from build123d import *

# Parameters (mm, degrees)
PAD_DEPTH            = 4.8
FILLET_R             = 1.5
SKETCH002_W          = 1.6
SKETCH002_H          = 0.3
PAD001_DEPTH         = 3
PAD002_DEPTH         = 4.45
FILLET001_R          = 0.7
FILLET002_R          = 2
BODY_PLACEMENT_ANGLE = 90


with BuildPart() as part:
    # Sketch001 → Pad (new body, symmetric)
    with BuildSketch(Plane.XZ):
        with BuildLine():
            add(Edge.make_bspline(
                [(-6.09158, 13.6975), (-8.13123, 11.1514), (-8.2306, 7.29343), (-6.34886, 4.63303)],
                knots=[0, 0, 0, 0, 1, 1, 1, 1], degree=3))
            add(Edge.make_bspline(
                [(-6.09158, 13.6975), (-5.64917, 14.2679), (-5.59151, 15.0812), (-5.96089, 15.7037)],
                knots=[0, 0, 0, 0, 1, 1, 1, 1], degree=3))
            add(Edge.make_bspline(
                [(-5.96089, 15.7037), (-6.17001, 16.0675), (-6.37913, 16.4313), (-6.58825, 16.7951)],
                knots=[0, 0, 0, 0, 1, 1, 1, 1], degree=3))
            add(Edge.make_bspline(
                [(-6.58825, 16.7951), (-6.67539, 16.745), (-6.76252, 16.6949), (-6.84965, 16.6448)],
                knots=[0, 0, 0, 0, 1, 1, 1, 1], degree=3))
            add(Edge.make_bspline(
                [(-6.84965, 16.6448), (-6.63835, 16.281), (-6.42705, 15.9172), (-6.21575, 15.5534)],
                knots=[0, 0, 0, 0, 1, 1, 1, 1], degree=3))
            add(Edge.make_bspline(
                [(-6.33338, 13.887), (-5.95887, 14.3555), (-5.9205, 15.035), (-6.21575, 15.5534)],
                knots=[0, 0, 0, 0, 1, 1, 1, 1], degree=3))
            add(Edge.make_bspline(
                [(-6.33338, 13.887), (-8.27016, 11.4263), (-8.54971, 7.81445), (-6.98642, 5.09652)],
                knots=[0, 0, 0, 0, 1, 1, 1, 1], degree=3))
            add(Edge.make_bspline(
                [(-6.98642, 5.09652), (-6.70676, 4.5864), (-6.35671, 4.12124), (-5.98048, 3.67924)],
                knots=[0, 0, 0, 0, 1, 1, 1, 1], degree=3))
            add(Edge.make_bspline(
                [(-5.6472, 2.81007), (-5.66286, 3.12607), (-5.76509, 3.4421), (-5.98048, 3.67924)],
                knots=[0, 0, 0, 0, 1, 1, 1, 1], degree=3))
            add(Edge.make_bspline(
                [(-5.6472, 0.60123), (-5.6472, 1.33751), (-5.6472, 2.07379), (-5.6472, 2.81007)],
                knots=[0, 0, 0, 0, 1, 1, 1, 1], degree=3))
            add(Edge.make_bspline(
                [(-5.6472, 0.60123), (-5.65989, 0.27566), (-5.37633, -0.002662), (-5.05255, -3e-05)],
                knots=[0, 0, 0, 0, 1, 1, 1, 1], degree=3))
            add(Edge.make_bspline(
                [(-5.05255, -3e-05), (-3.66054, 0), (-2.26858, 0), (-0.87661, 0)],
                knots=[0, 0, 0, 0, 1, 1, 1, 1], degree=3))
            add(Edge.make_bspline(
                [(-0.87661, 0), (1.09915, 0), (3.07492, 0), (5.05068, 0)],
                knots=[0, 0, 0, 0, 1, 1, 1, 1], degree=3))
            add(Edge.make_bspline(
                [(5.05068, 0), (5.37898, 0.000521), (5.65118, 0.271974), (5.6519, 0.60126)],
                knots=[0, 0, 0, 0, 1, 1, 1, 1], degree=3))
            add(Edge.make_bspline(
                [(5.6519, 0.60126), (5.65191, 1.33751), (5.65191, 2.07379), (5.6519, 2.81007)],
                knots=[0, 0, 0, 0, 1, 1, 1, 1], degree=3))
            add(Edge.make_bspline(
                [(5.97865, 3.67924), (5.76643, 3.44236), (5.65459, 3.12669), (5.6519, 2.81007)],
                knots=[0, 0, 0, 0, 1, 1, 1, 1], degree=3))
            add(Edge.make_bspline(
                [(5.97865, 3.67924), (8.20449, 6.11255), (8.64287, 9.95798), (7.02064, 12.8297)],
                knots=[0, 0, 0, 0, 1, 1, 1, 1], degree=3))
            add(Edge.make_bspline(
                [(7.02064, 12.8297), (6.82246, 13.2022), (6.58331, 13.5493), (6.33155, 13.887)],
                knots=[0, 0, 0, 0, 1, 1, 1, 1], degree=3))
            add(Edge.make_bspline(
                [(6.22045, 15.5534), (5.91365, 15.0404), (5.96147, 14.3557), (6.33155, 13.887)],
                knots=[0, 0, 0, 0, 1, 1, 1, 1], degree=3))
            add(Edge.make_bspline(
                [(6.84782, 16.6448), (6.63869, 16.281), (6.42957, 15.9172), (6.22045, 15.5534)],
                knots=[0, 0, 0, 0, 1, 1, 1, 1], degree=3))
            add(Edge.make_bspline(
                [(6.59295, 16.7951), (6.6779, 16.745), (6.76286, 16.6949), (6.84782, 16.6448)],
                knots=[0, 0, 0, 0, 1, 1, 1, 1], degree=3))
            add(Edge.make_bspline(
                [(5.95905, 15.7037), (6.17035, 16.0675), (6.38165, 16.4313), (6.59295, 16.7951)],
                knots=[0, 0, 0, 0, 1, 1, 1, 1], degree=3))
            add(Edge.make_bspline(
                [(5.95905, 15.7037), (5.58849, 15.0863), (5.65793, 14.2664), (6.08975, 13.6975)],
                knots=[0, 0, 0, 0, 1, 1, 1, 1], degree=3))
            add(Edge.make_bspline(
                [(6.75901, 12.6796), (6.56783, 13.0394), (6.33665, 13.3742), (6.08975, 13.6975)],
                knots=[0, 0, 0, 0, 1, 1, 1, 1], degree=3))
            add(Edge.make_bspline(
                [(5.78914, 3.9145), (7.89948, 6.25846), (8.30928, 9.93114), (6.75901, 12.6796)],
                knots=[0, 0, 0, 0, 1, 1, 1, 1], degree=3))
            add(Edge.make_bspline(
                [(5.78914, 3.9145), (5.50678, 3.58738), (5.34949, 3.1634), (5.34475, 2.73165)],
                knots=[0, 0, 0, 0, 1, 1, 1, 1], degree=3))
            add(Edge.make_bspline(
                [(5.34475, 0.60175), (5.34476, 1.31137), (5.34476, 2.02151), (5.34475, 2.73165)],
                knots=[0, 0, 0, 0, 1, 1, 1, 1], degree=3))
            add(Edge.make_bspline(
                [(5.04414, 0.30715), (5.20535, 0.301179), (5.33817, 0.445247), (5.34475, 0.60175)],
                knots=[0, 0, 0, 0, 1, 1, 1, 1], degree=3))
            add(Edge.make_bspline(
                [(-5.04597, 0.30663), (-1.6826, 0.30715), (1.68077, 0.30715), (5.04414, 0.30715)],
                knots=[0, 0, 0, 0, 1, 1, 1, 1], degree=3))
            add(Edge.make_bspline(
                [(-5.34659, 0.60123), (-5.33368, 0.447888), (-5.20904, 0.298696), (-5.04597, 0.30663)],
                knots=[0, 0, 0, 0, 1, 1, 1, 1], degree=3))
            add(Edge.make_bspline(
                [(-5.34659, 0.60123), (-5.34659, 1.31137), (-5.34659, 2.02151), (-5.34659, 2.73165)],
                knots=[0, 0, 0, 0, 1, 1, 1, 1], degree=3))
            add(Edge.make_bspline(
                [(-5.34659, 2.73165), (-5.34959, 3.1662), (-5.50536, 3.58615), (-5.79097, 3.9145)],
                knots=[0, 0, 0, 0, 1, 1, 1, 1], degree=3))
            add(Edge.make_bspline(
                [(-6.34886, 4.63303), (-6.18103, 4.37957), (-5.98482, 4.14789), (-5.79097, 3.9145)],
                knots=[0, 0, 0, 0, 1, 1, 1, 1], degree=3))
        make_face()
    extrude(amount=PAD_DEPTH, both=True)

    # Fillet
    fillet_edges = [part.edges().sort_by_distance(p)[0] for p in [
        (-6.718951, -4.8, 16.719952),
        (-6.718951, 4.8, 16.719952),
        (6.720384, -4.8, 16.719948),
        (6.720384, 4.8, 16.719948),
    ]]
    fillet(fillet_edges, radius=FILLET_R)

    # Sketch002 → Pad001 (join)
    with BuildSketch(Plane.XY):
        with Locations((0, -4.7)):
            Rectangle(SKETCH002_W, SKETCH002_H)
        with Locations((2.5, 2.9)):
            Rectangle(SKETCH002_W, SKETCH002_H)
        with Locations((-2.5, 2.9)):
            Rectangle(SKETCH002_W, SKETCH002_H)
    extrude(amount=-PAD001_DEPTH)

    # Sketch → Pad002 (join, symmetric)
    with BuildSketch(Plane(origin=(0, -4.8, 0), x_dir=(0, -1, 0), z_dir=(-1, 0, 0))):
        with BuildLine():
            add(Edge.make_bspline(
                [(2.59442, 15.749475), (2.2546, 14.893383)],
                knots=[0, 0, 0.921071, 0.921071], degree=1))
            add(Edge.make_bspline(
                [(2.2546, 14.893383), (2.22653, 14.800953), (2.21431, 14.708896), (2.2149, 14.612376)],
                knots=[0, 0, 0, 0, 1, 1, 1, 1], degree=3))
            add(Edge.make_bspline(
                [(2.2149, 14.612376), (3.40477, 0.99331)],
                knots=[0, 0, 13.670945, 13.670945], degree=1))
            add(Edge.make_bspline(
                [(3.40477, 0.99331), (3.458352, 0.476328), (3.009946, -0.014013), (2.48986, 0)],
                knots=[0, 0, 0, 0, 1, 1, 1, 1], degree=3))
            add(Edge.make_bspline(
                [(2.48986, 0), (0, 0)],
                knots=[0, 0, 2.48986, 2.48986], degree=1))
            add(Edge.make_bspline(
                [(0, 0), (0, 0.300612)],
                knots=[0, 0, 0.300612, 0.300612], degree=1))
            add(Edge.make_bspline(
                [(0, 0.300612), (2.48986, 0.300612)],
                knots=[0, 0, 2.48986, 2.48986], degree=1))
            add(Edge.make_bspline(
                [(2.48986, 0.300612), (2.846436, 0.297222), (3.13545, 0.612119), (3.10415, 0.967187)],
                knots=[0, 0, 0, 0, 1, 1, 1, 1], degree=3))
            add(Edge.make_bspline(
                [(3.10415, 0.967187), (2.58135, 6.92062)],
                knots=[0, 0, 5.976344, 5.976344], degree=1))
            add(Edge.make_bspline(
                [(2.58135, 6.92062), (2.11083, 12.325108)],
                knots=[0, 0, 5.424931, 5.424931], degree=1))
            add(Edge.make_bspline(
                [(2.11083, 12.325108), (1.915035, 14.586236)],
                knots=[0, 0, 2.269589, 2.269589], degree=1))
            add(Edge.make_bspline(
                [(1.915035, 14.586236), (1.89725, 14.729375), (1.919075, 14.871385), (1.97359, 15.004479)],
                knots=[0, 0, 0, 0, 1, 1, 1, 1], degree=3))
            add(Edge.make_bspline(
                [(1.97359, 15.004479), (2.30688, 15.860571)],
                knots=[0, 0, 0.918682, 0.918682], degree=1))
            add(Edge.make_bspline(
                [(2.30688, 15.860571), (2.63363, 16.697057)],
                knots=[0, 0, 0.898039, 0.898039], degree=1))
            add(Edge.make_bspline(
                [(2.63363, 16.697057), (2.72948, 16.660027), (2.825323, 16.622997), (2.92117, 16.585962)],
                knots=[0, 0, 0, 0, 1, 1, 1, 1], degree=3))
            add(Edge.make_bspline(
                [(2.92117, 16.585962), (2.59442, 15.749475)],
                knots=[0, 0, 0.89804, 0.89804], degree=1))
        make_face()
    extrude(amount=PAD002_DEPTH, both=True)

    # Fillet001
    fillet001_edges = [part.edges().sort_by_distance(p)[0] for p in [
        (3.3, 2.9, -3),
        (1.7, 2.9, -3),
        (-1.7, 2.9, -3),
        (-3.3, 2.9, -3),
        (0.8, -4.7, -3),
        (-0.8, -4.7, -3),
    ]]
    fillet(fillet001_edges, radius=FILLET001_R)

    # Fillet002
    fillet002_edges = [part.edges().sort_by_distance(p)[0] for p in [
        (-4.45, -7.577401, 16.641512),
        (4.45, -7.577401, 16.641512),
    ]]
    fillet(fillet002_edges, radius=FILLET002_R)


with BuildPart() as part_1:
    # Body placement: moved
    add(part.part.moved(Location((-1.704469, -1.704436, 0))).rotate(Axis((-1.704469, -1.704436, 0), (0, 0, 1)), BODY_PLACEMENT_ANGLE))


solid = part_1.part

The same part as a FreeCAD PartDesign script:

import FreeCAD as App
import Part
import Sketcher
from FreeCAD import Vector


def edges_at(feature, points):
    """Names of the edges that pass closest to the given points."""
    edges = feature.Shape.Edges
    near = lambda p: min(range(len(edges)), key=lambda i: edges[i].distToShape(Part.Vertex(*p))[0])
    return sorted({f"Edge{near(p) + 1}" for p in points})

doc = App.newDocument("Part")
body = doc.addObject("PartDesign::Body", "Body")

# Sketch on XZ plane
sketch1 = body.newObject("Sketcher::SketchObject", "Sketch")
sketch1.AttachmentSupport = (doc.getObject("XZ_Plane"), [""])
sketch1.MapMode = "FlatFace"
sketch1.addGeometry([
    Part.BSplineCurve([Vector(-6.09158, 13.6975, 0), Vector(-8.13123, 11.1514, 0), Vector(-8.2306, 7.29343, 0), Vector(-6.34886, 4.63303, 0)], [4, 4], [0, 1], False, 3, [1, 1, 1, 1], False),  # 0
    Part.BSplineCurve([Vector(-6.09158, 13.6975, 0), Vector(-5.64917, 14.2679, 0), Vector(-5.59151, 15.0812, 0), Vector(-5.96089, 15.7037, 0)], [4, 4], [0, 1], False, 3, [1, 1, 1, 1], False),  # 1
    Part.BSplineCurve([Vector(-5.96089, 15.7037, 0), Vector(-6.17001, 16.0675, 0), Vector(-6.37913, 16.4313, 0), Vector(-6.58825, 16.7951, 0)], [4, 4], [0, 1], False, 3, [1, 1, 1, 1], False),  # 2
    Part.BSplineCurve([Vector(-6.58825, 16.7951, 0), Vector(-6.67539, 16.745, 0), Vector(-6.76252, 16.6949, 0), Vector(-6.84965, 16.6448, 0)], [4, 4], [0, 1], False, 3, [1, 1, 1, 1], False),  # 3
    Part.BSplineCurve([Vector(-6.84965, 16.6448, 0), Vector(-6.63835, 16.281, 0), Vector(-6.42705, 15.9172, 0), Vector(-6.21575, 15.5534, 0)], [4, 4], [0, 1], False, 3, [1, 1, 1, 1], False),  # 4
    Part.BSplineCurve([Vector(-6.33338, 13.887, 0), Vector(-5.95887, 14.3555, 0), Vector(-5.9205, 15.035, 0), Vector(-6.21575, 15.5534, 0)], [4, 4], [0, 1], False, 3, [1, 1, 1, 1], False),  # 5
    Part.BSplineCurve([Vector(-6.33338, 13.887, 0), Vector(-8.27016, 11.4263, 0), Vector(-8.54971, 7.81445, 0), Vector(-6.98642, 5.09652, 0)], [4, 4], [0, 1], False, 3, [1, 1, 1, 1], False),  # 6
    Part.BSplineCurve([Vector(-6.98642, 5.09652, 0), Vector(-6.70676, 4.5864, 0), Vector(-6.35671, 4.12124, 0), Vector(-5.98048, 3.67924, 0)], [4, 4], [0, 1], False, 3, [1, 1, 1, 1], False),  # 7
    Part.BSplineCurve([Vector(-5.6472, 2.81007, 0), Vector(-5.66286, 3.12607, 0), Vector(-5.76509, 3.4421, 0), Vector(-5.98048, 3.67924, 0)], [4, 4], [0, 1], False, 3, [1, 1, 1, 1], False),  # 8
    Part.BSplineCurve([Vector(-5.6472, 0.60123, 0), Vector(-5.6472, 1.33751, 0), Vector(-5.6472, 2.07379, 0), Vector(-5.6472, 2.81007, 0)], [4, 4], [0, 1], False, 3, [1, 1, 1, 1], False),  # 9
    Part.BSplineCurve([Vector(-5.6472, 0.60123, 0), Vector(-5.65989, 0.27566, 0), Vector(-5.37633, -0.002662, 0), Vector(-5.05255, -0.00003, 0)], [4, 4], [0, 1], False, 3, [1, 1, 1, 1], False),  # 10
    Part.BSplineCurve([Vector(-5.05255, -0.00003, 0), Vector(-3.66054, 0, 0), Vector(-2.26858, 0, 0), Vector(1.09915, 0, 0), Vector(3.07492, 0, 0), Vector(5.05068, 0, 0)], [4, 2, 4], [0, 1, 2.419398407], False, 3, [1, 1, 1, 1, 1, 1], False),  # 11
    Part.BSplineCurve([Vector(5.05068, 0, 0), Vector(5.37898, 0.000521, 0), Vector(5.65118, 0.271974, 0), Vector(5.6519, 0.60126, 0)], [4, 4], [0, 1], False, 3, [1, 1, 1, 1], False),  # 12
    Part.BSplineCurve([Vector(5.6519, 0.60126, 0), Vector(5.65191, 1.33751, 0), Vector(5.65191, 2.07379, 0), Vector(5.6519, 2.81007, 0)], [4, 4], [0, 1], False, 3, [1, 1, 1, 1], False),  # 13
    Part.BSplineCurve([Vector(5.97865, 3.67924, 0), Vector(5.76643, 3.44236, 0), Vector(5.65459, 3.12669, 0), Vector(5.6519, 2.81007, 0)], [4, 4], [0, 1], False, 3, [1, 1, 1, 1], False),  # 14
    Part.BSplineCurve([Vector(5.97865, 3.67924, 0), Vector(8.20449, 6.11255, 0), Vector(8.64287, 9.95798, 0), Vector(7.02064, 12.8297, 0)], [4, 4], [0, 1], False, 3, [1, 1, 1, 1], False),  # 15
    Part.BSplineCurve([Vector(7.02064, 12.8297, 0), Vector(6.82246, 13.2022, 0), Vector(6.58331, 13.5493, 0), Vector(6.33155, 13.887, 0)], [4, 4], [0, 1], False, 3, [1, 1, 1, 1], False),  # 16
    Part.BSplineCurve([Vector(6.22045, 15.5534, 0), Vector(5.91365, 15.0404, 0), Vector(5.96147, 14.3557, 0), Vector(6.33155, 13.887, 0)], [4, 4], [0, 1], False, 3, [1, 1, 1, 1], False),  # 17
    Part.BSplineCurve([Vector(6.84782, 16.6448, 0), Vector(6.63869, 16.281, 0), Vector(6.42957, 15.9172, 0), Vector(6.22045, 15.5534, 0)], [4, 4], [0, 1], False, 3, [1, 1, 1, 1], False),  # 18
    Part.BSplineCurve([Vector(6.59295, 16.7951, 0), Vector(6.6779, 16.745, 0), Vector(6.76286, 16.6949, 0), Vector(6.84782, 16.6448, 0)], [4, 4], [0, 1], False, 3, [1, 1, 1, 1], False),  # 19
    Part.BSplineCurve([Vector(5.95905, 15.7037, 0), Vector(6.17035, 16.0675, 0), Vector(6.38165, 16.4313, 0), Vector(6.59295, 16.7951, 0)], [4, 4], [0, 1], False, 3, [1, 1, 1, 1], False),  # 20
    Part.BSplineCurve([Vector(5.95905, 15.7037, 0), Vector(5.58849, 15.0863, 0), Vector(5.65793, 14.2664, 0), Vector(6.08975, 13.6975, 0)], [4, 4], [0, 1], False, 3, [1, 1, 1, 1], False),  # 21
    Part.BSplineCurve([Vector(6.75901, 12.6796, 0), Vector(6.56783, 13.0394, 0), Vector(6.33665, 13.3742, 0), Vector(6.08975, 13.6975, 0)], [4, 4], [0, 1], False, 3, [1, 1, 1, 1], False),  # 22
    Part.BSplineCurve([Vector(5.78914, 3.9145, 0), Vector(7.89948, 6.25846, 0), Vector(8.30928, 9.93114, 0), Vector(6.75901, 12.6796, 0)], [4, 4], [0, 1], False, 3, [1, 1, 1, 1], False),  # 23
    Part.BSplineCurve([Vector(5.78914, 3.9145, 0), Vector(5.50678, 3.58738, 0), Vector(5.34949, 3.1634, 0), Vector(5.34475, 2.73165, 0)], [4, 4], [0, 1], False, 3, [1, 1, 1, 1], False),  # 24
    Part.BSplineCurve([Vector(5.34475, 0.60175, 0), Vector(5.34476, 1.31137, 0), Vector(5.34476, 2.02151, 0), Vector(5.34475, 2.73165, 0)], [4, 4], [0, 1], False, 3, [1, 1, 1, 1], False),  # 25
    Part.BSplineCurve([Vector(5.04414, 0.30715, 0), Vector(5.20535, 0.301179, 0), Vector(5.33817, 0.445247, 0), Vector(5.34475, 0.60175, 0)], [4, 4], [0, 1], False, 3, [1, 1, 1, 1], False),  # 26
    Part.BSplineCurve([Vector(-5.04597, 0.30663, 0), Vector(-1.6826, 0.30715, 0), Vector(1.68077, 0.30715, 0), Vector(5.04414, 0.30715, 0)], [4, 4], [0, 1], False, 3, [1, 1, 1, 1], False),  # 27
    Part.BSplineCurve([Vector(-5.34659, 0.60123, 0), Vector(-5.33368, 0.447888, 0), Vector(-5.20904, 0.298696, 0), Vector(-5.04597, 0.30663, 0)], [4, 4], [0, 1], False, 3, [1, 1, 1, 1], False),  # 28
    Part.BSplineCurve([Vector(-5.34659, 0.60123, 0), Vector(-5.34659, 1.31137, 0), Vector(-5.34659, 2.02151, 0), Vector(-5.34659, 2.73165, 0)], [4, 4], [0, 1], False, 3, [1, 1, 1, 1], False),  # 29
    Part.BSplineCurve([Vector(-5.34659, 2.73165, 0), Vector(-5.34959, 3.1662, 0), Vector(-5.50536, 3.58615, 0), Vector(-5.79097, 3.9145, 0)], [4, 4], [0, 1], False, 3, [1, 1, 1, 1], False),  # 30
    Part.BSplineCurve([Vector(-6.34886, 4.63303, 0), Vector(-6.18103, 4.37957, 0), Vector(-5.98482, 4.14789, 0), Vector(-5.79097, 3.9145, 0)], [4, 4], [0, 1], False, 3, [1, 1, 1, 1], False),  # 31
], False)
sketch1.addConstraint([
    Sketcher.Constraint("Block", 0),
    Sketcher.Constraint("Block", 1),
    Sketcher.Constraint("Block", 2),
    Sketcher.Constraint("Block", 3),
    Sketcher.Constraint("Block", 4),
    Sketcher.Constraint("Block", 5),
    Sketcher.Constraint("Block", 6),
    Sketcher.Constraint("Block", 7),
    Sketcher.Constraint("Block", 8),
    Sketcher.Constraint("Block", 9),
    Sketcher.Constraint("Block", 10),
    Sketcher.Constraint("Block", 11),
    Sketcher.Constraint("Block", 12),
    Sketcher.Constraint("Block", 13),
    Sketcher.Constraint("Block", 14),
    Sketcher.Constraint("Block", 15),
    Sketcher.Constraint("Block", 16),
    Sketcher.Constraint("Block", 17),
    Sketcher.Constraint("Block", 18),
    Sketcher.Constraint("Block", 19),
    Sketcher.Constraint("Block", 20),
    Sketcher.Constraint("Block", 21),
    Sketcher.Constraint("Block", 22),
    Sketcher.Constraint("Block", 23),
    Sketcher.Constraint("Block", 24),
    Sketcher.Constraint("Block", 25),
    Sketcher.Constraint("Block", 26),
    Sketcher.Constraint("Block", 27),
    Sketcher.Constraint("Block", 28),
    Sketcher.Constraint("Block", 29),
    Sketcher.Constraint("Block", 30),
    Sketcher.Constraint("Block", 31),
])
pad1 = body.newObject("PartDesign::Pad", "Pad")
pad1.Profile = sketch1
pad1.Length = 9.6
pad1.Midplane = True
doc.recompute()

fillet = body.newObject("PartDesign::Fillet", "Fillet")
fillet.Base = (pad1, edges_at(pad1, [
    (-6.719, -4.8, 16.72),
    (-6.719, 4.8, 16.72),
    (6.72, -4.8, 16.72),
    (6.72, 4.8, 16.72),
]))
fillet.Radius = 1.5

# Sketch on XY plane
sketch2 = body.newObject("Sketcher::SketchObject", "Sketch001")
sketch2.AttachmentSupport = (doc.getObject("XY_Plane"), [""])
sketch2.MapMode = "FlatFace"
sketch2.addGeometry([
    Part.LineSegment(Vector(-0.8, -4.55, 0), Vector(-0.8, -4.85, 0)),  # 0
    Part.LineSegment(Vector(-0.8, -4.85, 0), Vector(0.8, -4.85, 0)),  # 1
    Part.LineSegment(Vector(0.8, -4.85, 0), Vector(0.8, -4.55, 0)),  # 2
    Part.LineSegment(Vector(0.8, -4.55, 0), Vector(-0.8, -4.55, 0)),  # 3
    Part.LineSegment(Vector(1.7, 3.05, 0), Vector(1.7, 2.75, 0)),  # 4
    Part.LineSegment(Vector(1.7, 2.75, 0), Vector(3.3, 2.75, 0)),  # 5
    Part.LineSegment(Vector(3.3, 2.75, 0), Vector(3.3, 3.05, 0)),  # 6
    Part.LineSegment(Vector(3.3, 3.05, 0), Vector(1.7, 3.05, 0)),  # 7
    Part.LineSegment(Vector(-3.3, 3.05, 0), Vector(-3.3, 2.75, 0)),  # 8
    Part.LineSegment(Vector(-3.3, 2.75, 0), Vector(-1.7, 2.75, 0)),  # 9
    Part.LineSegment(Vector(-1.7, 2.75, 0), Vector(-1.7, 3.05, 0)),  # 10
    Part.LineSegment(Vector(-1.7, 3.05, 0), Vector(-3.3, 3.05, 0)),  # 11
], False)
sketch2.addConstraint([
    Sketcher.Constraint("Coincident", 0, 2, 1, 1),
    Sketcher.Constraint("Coincident", 1, 2, 2, 1),
    Sketcher.Constraint("Coincident", 2, 2, 3, 1),
    Sketcher.Constraint("Coincident", 3, 2, 0, 1),
    Sketcher.Constraint("Coincident", 4, 2, 5, 1),
    Sketcher.Constraint("Coincident", 5, 2, 6, 1),
    Sketcher.Constraint("Coincident", 6, 2, 7, 1),
    Sketcher.Constraint("Coincident", 7, 2, 4, 1),
    Sketcher.Constraint("Coincident", 8, 2, 9, 1),
    Sketcher.Constraint("Coincident", 9, 2, 10, 1),
    Sketcher.Constraint("Coincident", 10, 2, 11, 1),
    Sketcher.Constraint("Coincident", 11, 2, 8, 1),
    Sketcher.Constraint("Vertical", 0),
    Sketcher.Constraint("Horizontal", 1),
    Sketcher.Constraint("Vertical", 2),
    Sketcher.Constraint("Horizontal", 3),
    Sketcher.Constraint("Vertical", 4),
    Sketcher.Constraint("Horizontal", 5),
    Sketcher.Constraint("Vertical", 6),
    Sketcher.Constraint("Horizontal", 7),
    Sketcher.Constraint("Vertical", 8),
    Sketcher.Constraint("Horizontal", 9),
    Sketcher.Constraint("Vertical", 10),
    Sketcher.Constraint("Horizontal", 11),
    Sketcher.Constraint("Symmetric", 5, 2, 8, 2, -2),
    Sketcher.Constraint("Symmetric", 7, 2, 10, 2, -2),
    Sketcher.Constraint("Equal", 3, 5),
    Sketcher.Constraint("Equal", 2, 4),
    Sketcher.Constraint("DistanceX", 1, 1, 1, 2, 1.6),
    Sketcher.Constraint("DistanceY", 0, 2, 0, 1, 0.3),
    Sketcher.Constraint("DistanceX", 8, 2, 4, 2, 5.0),
    Sketcher.Constraint("DistanceX", 0, 2, -1, 1, 0.8),
    Sketcher.Constraint("DistanceY", 2, 2, 4, 2, 7.3),
    Sketcher.Constraint("DistanceY", 0, 2, -1, 1, 4.85),
])
pad2 = body.newObject("PartDesign::Pad", "Pad001")
pad2.Profile = sketch2
pad2.Length = 3
pad2.Reversed = True

# Sketch on YZ plane
sketch3 = body.newObject("Sketcher::SketchObject", "Sketch002")
sketch3.AttachmentSupport = (doc.getObject("YZ_Plane"), [""])
sketch3.MapMode = "FlatFace"
sketch3.addGeometry([
    Part.BSplineCurve([Vector(-7.39442, 15.749475, 0), Vector(-7.0546, 14.893383, 0)], [2, 2], [0, 0.921071], False, 1, [1, 1], False),  # 0
    Part.BSplineCurve([Vector(-7.72117, 16.585962, 0), Vector(-7.39442, 15.749475, 0)], [2, 2], [0, 0.89804], False, 1, [1, 1], False),  # 1
    Part.BSplineCurve([Vector(-7.43363, 16.697057, 0), Vector(-7.52948, 16.660027, 0), Vector(-7.625323, 16.622997, 0), Vector(-7.72117, 16.585962, 0)], [4, 4], [0, 1], False, 3, [1, 1, 1, 1], False),  # 2
    Part.BSplineCurve([Vector(-7.10688, 15.860571, 0), Vector(-7.43363, 16.697057, 0)], [2, 2], [0, 0.898039], False, 1, [1, 1], False),  # 3
    Part.BSplineCurve([Vector(-6.77359, 15.004479, 0), Vector(-7.10688, 15.860571, 0)], [2, 2], [0, 0.918682], False, 1, [1, 1], False),  # 4
    Part.BSplineCurve([Vector(-6.715035, 14.586236, 0), Vector(-6.69725, 14.729375, 0), Vector(-6.719075, 14.871385, 0), Vector(-6.77359, 15.004479, 0)], [4, 4], [0, 1], False, 3, [1, 1, 1, 1], False),  # 5
    Part.BSplineCurve([Vector(-6.91083, 12.325108, 0), Vector(-6.715035, 14.586236, 0)], [2, 2], [0, 2.269589], False, 1, [1, 1], False),  # 6
    Part.BSplineCurve([Vector(-7.38135, 6.92062, 0), Vector(-6.91083, 12.325108, 0)], [2, 2], [0, 5.424931], False, 1, [1, 1], False),  # 7
    Part.BSplineCurve([Vector(-7.90415, 0.967187, 0), Vector(-7.38135, 6.92062, 0)], [2, 2], [0, 5.976344], False, 1, [1, 1], False),  # 8
    Part.BSplineCurve([Vector(-7.28986, 0.300612, 0), Vector(-7.646436, 0.297222, 0), Vector(-7.93545, 0.612119, 0), Vector(-7.90415, 0.967187, 0)], [4, 4], [0, 1], False, 3, [1, 1, 1, 1], False),  # 9
    Part.BSplineCurve([Vector(-4.8, 0.300612, 0), Vector(-7.28986, 0.300612, 0)], [2, 2], [0, 2.48986], False, 1, [1, 1], False),  # 10
    Part.BSplineCurve([Vector(-4.8, 0, 0), Vector(-4.8, 0.300612, 0)], [2, 2], [0, 0.300612], False, 1, [1, 1], False),  # 11
    Part.BSplineCurve([Vector(-7.28986, 0, 0), Vector(-4.8, 0, 0)], [2, 2], [0, 2.48986], False, 1, [1, 1], False),  # 12
    Part.BSplineCurve([Vector(-8.20477, 0.99331, 0), Vector(-8.258352, 0.476328, 0), Vector(-7.809946, -0.014013, 0), Vector(-7.28986, 0, 0)], [4, 4], [0, 1], False, 3, [1, 1, 1, 1], False),  # 13
    Part.BSplineCurve([Vector(-7.0149, 14.612376, 0), Vector(-8.20477, 0.99331, 0)], [2, 2], [0, 13.670945], False, 1, [1, 1], False),  # 14
    Part.BSplineCurve([Vector(-7.0546, 14.893383, 0), Vector(-7.02653, 14.800953, 0), Vector(-7.01431, 14.708896, 0), Vector(-7.0149, 14.612376, 0)], [4, 4], [0, 1], False, 3, [1, 1, 1, 1], False),  # 15
], False)
sketch3.addConstraint([
    Sketcher.Constraint("Block", 0),
    Sketcher.Constraint("Block", 1),
    Sketcher.Constraint("Block", 2),
    Sketcher.Constraint("Block", 3),
    Sketcher.Constraint("Block", 4),
    Sketcher.Constraint("Block", 5),
    Sketcher.Constraint("Block", 6),
    Sketcher.Constraint("Block", 7),
    Sketcher.Constraint("Block", 8),
    Sketcher.Constraint("Block", 9),
    Sketcher.Constraint("Block", 10),
    Sketcher.Constraint("Block", 11),
    Sketcher.Constraint("Block", 12),
    Sketcher.Constraint("Block", 13),
    Sketcher.Constraint("Block", 14),
    Sketcher.Constraint("Block", 15),
])
pad3 = body.newObject("PartDesign::Pad", "Pad002")
pad3.Profile = sketch3
pad3.Length = 8.9
pad3.Midplane = True
doc.recompute()

fillet2 = body.newObject("PartDesign::Fillet", "Fillet001")
fillet2.Base = (pad3, edges_at(pad3, [
    (3.3, 2.9, -3),
    (1.7, 2.9, -3),
    (-1.7, 2.9, -3),
    (-3.3, 2.9, -3),
    (0.8, -4.7, -3),
    (-0.8, -4.7, -3),
]))
fillet2.Radius = 0.7
doc.recompute()

fillet3 = body.newObject("PartDesign::Fillet", "Fillet002")
fillet3.Base = (fillet2, edges_at(fillet2, [(-4.45, -7.577, 16.642), (4.45, -7.577, 16.642)]))
fillet3.Radius = 2
body2 = doc.addObject("PartDesign::Body", "Body001")
doc.recompute()

body.Placement = App.Placement(Vector(-1.704469, -1.704436, 0), App.Rotation(Vector(0, 0, 1), 90))
boolean = body2.newObject("PartDesign::Boolean", "Boolean")
boolean.Type = "Fuse"
boolean.addObjects([body])

doc.recompute()
